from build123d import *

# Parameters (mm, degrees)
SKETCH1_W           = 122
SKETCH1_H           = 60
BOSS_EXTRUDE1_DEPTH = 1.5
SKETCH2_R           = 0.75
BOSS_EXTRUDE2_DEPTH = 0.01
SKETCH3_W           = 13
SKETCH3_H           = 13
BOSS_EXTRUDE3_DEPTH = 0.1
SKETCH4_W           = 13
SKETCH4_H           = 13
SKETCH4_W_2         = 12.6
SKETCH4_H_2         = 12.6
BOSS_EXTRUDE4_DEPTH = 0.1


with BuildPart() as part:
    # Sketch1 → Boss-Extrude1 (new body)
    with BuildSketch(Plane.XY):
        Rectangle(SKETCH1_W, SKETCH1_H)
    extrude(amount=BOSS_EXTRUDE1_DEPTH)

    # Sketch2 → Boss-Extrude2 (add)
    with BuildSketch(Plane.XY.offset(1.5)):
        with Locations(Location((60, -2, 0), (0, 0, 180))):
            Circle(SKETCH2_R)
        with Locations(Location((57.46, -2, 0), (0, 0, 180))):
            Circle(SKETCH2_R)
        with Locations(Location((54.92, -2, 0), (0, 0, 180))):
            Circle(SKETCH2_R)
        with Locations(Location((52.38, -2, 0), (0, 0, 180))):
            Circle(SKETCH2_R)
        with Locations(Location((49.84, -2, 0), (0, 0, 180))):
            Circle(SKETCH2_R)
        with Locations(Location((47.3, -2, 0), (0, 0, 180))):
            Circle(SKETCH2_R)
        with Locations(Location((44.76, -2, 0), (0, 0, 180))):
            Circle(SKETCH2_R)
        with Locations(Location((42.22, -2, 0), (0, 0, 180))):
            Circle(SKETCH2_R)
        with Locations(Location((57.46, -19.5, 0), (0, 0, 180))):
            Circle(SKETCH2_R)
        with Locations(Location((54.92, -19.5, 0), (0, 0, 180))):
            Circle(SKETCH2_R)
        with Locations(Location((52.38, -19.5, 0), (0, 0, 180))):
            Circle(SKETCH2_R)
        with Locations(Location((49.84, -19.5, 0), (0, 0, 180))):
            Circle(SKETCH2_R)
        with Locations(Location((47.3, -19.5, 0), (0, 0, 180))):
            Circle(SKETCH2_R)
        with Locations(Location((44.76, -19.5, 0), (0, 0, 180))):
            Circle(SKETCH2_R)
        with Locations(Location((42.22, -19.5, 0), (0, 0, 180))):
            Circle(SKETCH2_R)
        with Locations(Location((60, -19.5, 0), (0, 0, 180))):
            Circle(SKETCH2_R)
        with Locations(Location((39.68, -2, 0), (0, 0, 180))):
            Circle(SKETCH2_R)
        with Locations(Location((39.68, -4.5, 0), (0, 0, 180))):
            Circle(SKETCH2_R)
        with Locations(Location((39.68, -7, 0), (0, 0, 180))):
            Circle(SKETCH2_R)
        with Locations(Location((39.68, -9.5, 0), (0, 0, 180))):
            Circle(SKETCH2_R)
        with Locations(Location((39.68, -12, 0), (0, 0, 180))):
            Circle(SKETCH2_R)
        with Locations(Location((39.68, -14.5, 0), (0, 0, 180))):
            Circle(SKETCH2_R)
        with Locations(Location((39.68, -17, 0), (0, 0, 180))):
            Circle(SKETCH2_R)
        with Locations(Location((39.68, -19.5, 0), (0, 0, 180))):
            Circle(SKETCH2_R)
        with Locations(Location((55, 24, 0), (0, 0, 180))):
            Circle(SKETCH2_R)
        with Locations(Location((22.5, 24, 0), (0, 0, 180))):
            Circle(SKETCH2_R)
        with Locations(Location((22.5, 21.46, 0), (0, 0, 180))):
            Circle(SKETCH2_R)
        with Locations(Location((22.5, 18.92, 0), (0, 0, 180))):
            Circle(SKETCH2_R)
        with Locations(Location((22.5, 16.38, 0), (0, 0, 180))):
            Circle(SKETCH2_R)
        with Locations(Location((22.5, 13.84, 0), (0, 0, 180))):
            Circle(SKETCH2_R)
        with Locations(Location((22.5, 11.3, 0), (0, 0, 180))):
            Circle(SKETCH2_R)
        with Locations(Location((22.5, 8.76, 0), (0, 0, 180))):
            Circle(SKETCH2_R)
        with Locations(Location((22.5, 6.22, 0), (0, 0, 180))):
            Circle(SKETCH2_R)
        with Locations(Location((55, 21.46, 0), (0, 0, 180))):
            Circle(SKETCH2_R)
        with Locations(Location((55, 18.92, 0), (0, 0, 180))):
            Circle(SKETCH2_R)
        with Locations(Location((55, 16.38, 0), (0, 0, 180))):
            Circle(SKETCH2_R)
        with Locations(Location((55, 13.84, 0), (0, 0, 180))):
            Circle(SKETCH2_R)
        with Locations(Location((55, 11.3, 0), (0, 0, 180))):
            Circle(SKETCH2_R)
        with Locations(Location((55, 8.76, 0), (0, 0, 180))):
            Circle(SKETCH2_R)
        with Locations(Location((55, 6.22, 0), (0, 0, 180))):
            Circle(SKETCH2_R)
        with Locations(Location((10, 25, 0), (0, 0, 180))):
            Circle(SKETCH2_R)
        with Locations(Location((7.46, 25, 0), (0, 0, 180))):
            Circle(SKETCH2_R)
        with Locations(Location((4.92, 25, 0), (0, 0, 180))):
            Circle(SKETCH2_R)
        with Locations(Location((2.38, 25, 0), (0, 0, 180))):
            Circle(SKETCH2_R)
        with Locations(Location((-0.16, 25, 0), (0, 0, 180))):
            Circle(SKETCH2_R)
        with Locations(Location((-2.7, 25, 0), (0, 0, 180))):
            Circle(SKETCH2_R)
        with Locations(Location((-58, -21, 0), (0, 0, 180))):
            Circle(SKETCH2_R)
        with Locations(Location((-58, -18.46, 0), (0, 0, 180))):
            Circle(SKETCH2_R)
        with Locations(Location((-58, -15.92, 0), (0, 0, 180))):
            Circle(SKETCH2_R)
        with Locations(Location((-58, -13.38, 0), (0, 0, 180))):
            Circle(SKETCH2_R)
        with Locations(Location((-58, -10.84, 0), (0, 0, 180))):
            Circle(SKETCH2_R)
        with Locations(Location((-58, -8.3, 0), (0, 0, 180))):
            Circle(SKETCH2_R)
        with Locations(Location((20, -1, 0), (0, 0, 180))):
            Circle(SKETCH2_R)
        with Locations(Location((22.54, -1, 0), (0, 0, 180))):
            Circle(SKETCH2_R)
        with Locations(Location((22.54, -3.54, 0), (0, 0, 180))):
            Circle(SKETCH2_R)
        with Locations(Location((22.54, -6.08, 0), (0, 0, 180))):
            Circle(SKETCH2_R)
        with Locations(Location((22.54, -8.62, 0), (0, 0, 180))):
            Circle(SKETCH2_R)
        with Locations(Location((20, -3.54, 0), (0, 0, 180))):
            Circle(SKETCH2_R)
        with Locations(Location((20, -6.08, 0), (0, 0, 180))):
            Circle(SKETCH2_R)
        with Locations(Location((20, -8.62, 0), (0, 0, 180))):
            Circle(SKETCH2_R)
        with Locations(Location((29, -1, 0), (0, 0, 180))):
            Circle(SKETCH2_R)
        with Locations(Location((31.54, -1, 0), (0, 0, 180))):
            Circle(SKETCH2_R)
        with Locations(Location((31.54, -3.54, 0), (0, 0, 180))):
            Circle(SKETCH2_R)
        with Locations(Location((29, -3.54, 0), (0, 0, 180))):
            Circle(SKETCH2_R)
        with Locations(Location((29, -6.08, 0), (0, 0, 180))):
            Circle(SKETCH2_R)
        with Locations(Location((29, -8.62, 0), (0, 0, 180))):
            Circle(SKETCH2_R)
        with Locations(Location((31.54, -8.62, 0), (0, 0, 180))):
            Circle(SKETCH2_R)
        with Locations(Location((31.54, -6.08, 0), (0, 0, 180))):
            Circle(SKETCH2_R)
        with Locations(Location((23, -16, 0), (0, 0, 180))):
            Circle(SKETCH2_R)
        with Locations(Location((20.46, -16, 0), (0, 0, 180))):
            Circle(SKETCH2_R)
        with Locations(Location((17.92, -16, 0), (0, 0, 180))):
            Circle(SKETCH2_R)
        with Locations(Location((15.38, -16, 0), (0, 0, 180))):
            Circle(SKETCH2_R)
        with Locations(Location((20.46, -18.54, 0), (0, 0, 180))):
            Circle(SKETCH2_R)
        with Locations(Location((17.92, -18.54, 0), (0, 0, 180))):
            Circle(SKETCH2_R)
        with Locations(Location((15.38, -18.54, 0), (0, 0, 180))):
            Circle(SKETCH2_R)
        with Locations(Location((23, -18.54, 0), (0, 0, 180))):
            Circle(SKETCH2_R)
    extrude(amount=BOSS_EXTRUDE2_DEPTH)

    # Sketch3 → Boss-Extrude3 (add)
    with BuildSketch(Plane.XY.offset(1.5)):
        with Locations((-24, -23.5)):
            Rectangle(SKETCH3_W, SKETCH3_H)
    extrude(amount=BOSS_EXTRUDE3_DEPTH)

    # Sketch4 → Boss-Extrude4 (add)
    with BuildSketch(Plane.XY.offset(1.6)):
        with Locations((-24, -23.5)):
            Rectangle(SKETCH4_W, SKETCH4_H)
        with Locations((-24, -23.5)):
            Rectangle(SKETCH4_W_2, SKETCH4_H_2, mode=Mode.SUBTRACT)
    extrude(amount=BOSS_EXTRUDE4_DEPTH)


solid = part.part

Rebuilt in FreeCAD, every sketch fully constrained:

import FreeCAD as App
import Part
import Sketcher

V = App.Vector

doc = App.newDocument("Part")
body = doc.addObject("PartDesign::Body", "Body")

sketch1 = body.newObject("Sketcher::SketchObject", "Sketch")
sketch1.AttachmentSupport = (doc.getObject("XY_Plane"), [""])
sketch1.MapMode = "FlatFace"
sketch1.addGeometry([
    Part.LineSegment(V(-61, 30, 0), V(-61, -30, 0)),
    Part.LineSegment(V(-61, -30, 0), V(61, -30, 0)),
    Part.LineSegment(V(61, -30, 0), V(61, 30, 0)),
    Part.LineSegment(V(61, 30, 0), V(-61, 30, 0)),
], False)
sketch1.addConstraint([
    Sketcher.Constraint("Coincident", 0, 2, 1, 1),
    Sketcher.Constraint("Coincident", 1, 2, 2, 1),
    Sketcher.Constraint("Coincident", 2, 2, 3, 1),
    Sketcher.Constraint("Coincident", 3, 2, 0, 1),
    Sketcher.Constraint("Vertical", 0),
    Sketcher.Constraint("Horizontal", 1),
    Sketcher.Constraint("Vertical", 2),
    Sketcher.Constraint("Horizontal", 3),
    Sketcher.Constraint("Symmetric", 0, 2, 2, 2, -1, 1),
    Sketcher.Constraint("DistanceX", 1, 1, 1, 2, 122.0),
    Sketcher.Constraint("DistanceY", 0, 2, 0, 1, 60.0),
])
pad1 = body.newObject("PartDesign::Pad", "Pad")
pad1.Profile = sketch1
pad1.Length = 1.5

sketch2 = body.newObject("Sketcher::SketchObject", "Sketch001")
sketch2.AttachmentSupport = (doc.getObject("XY_Plane"), [""])
sketch2.MapMode = "FlatFace"
sketch2.AttachmentOffset = App.Placement(V(0, 0, 1.5), App.Rotation())
sketch2.addGeometry([
    Part.Circle(V(60, -2, 0), V(0, 0, 1), 0.8),
    Part.Circle(V(57.5, -2, 0), V(0, 0, 1), 0.8),
    Part.Circle(V(54.9, -2, 0), V(0, 0, 1), 0.8),
    Part.Circle(V(52.4, -2, 0), V(0, 0, 1), 0.8),
    Part.Circle(V(49.8, -2, 0), V(0, 0, 1), 0.8),
    Part.Circle(V(47.3, -2, 0), V(0, 0, 1), 0.8),
    Part.Circle(V(44.8, -2, 0), V(0, 0, 1), 0.8),
    Part.Circle(V(42.2, -2, 0), V(0, 0, 1), 0.8),
    Part.Circle(V(57.5, -19.5, 0), V(0, 0, 1), 0.8),
    Part.Circle(V(54.9, -19.5, 0), V(0, 0, 1), 0.8),
    Part.Circle(V(52.4, -19.5, 0), V(0, 0, 1), 0.8),
    Part.Circle(V(49.8, -19.5, 0), V(0, 0, 1), 0.8),
    Part.Circle(V(47.3, -19.5, 0), V(0, 0, 1), 0.8),
    Part.Circle(V(44.8, -19.5, 0), V(0, 0, 1), 0.8),
    Part.Circle(V(42.2, -19.5, 0), V(0, 0, 1), 0.8),
    Part.Circle(V(60, -19.5, 0), V(0, 0, 1), 0.8),
    Part.Circle(V(39.7, -2, 0), V(0, 0, 1), 0.8),
    Part.Circle(V(39.7, -4.5, 0), V(0, 0, 1), 0.8),
    Part.Circle(V(39.7, -7, 0), V(0, 0, 1), 0.8),
    Part.Circle(V(39.7, -9.5, 0), V(0, 0, 1), 0.8),
    Part.Circle(V(39.7, -12, 0), V(0, 0, 1), 0.8),
    Part.Circle(V(39.7, -14.5, 0), V(0, 0, 1), 0.8),
    Part.Circle(V(39.7, -17, 0), V(0, 0, 1), 0.8),
    Part.Circle(V(39.7, -19.5, 0), V(0, 0, 1), 0.8),
    Part.Circle(V(55, 24, 0), V(0, 0, 1), 0.8),
    Part.Circle(V(22.5, 24, 0), V(0, 0, 1), 0.8),
    Part.Circle(V(22.5, 21.5, 0), V(0, 0, 1), 0.8),
    Part.Circle(V(22.5, 18.9, 0), V(0, 0, 1), 0.8),
    Part.Circle(V(22.5, 16.4, 0), V(0, 0, 1), 0.8),
    Part.Circle(V(22.5, 13.8, 0), V(0, 0, 1), 0.8),
    Part.Circle(V(22.5, 11.3, 0), V(0, 0, 1), 0.8),
    Part.Circle(V(22.5, 8.8, 0), V(0, 0, 1), 0.8),
    Part.Circle(V(22.5, 6.2, 0), V(0, 0, 1), 0.8),
    Part.Circle(V(55, 21.5, 0), V(0, 0, 1), 0.8),
    Part.Circle(V(55, 18.9, 0), V(0, 0, 1), 0.8),
    Part.Circle(V(55, 16.4, 0), V(0, 0, 1), 0.8),
    Part.Circle(V(55, 13.8, 0), V(0, 0, 1), 0.8),
    Part.Circle(V(55, 11.3, 0), V(0, 0, 1), 0.8),
    Part.Circle(V(55, 8.8, 0), V(0, 0, 1), 0.8),
    Part.Circle(V(55, 6.2, 0), V(0, 0, 1), 0.8),
    Part.Circle(V(10, 25, 0), V(0, 0, 1), 0.8),
    Part.Circle(V(7.5, 25, 0), V(0, 0, 1), 0.8),
    Part.Circle(V(4.9, 25, 0), V(0, 0, 1), 0.8),
    Part.Circle(V(2.4, 25, 0), V(0, 0, 1), 0.8),
    Part.Circle(V(-0.2, 25, 0), V(0, 0, 1), 0.8),
    Part.Circle(V(-2.7, 25, 0), V(0, 0, 1), 0.8),
    Part.Circle(V(-58, -21, 0), V(0, 0, 1), 0.8),
    Part.Circle(V(-58, -18.5, 0), V(0, 0, 1), 0.8),
    Part.Circle(V(-58, -15.9, 0), V(0, 0, 1), 0.8),
    Part.Circle(V(-58, -13.4, 0), V(0, 0, 1), 0.8),
    Part.Circle(V(-58, -10.8, 0), V(0, 0, 1), 0.8),
    Part.Circle(V(-58, -8.3, 0), V(0, 0, 1), 0.8),
    Part.Circle(V(20, -1, 0), V(0, 0, 1), 0.8),
    Part.Circle(V(22.5, -1, 0), V(0, 0, 1), 0.8),
    Part.Circle(V(22.5, -3.5, 0), V(0, 0, 1), 0.8),
    Part.Circle(V(22.5, -6.1, 0), V(0, 0, 1), 0.8),
    Part.Circle(V(22.5, -8.6, 0), V(0, 0, 1), 0.8),
    Part.Circle(V(20, -3.5, 0), V(0, 0, 1), 0.8),
    Part.Circle(V(20, -6.1, 0), V(0, 0, 1), 0.8),
    Part.Circle(V(20, -8.6, 0), V(0, 0, 1), 0.8),
    Part.Circle(V(29, -1, 0), V(0, 0, 1), 0.8),
    Part.Circle(V(31.5, -1, 0), V(0, 0, 1), 0.8),
    Part.Circle(V(31.5, -3.5, 0), V(0, 0, 1), 0.8),
    Part.Circle(V(29, -3.5, 0), V(0, 0, 1), 0.8),
    Part.Circle(V(29, -6.1, 0), V(0, 0, 1), 0.8),
    Part.Circle(V(29, -8.6, 0), V(0, 0, 1), 0.8),
    Part.Circle(V(31.5, -8.6, 0), V(0, 0, 1), 0.8),
    Part.Circle(V(31.5, -6.1, 0), V(0, 0, 1), 0.8),
    Part.Circle(V(23, -16, 0), V(0, 0, 1), 0.8),
    Part.Circle(V(20.5, -16, 0), V(0, 0, 1), 0.8),
    Part.Circle(V(17.9, -16, 0), V(0, 0, 1), 0.8),
    Part.Circle(V(15.4, -16, 0), V(0, 0, 1), 0.8),
    Part.Circle(V(20.5, -18.5, 0), V(0, 0, 1), 0.8),
    Part.Circle(V(17.9, -18.5, 0), V(0, 0, 1), 0.8),
    Part.Circle(V(15.4, -18.5, 0), V(0, 0, 1), 0.8),
    Part.Circle(V(23, -18.5, 0), V(0, 0, 1), 0.8),
], False)
sketch2.addConstraint([
    Sketcher.Constraint("Equal", 0, 1),
    Sketcher.Constraint("Equal", 1, 2),
    Sketcher.Constraint("Equal", 2, 3),
    Sketcher.Constraint("Equal", 3, 4),
    Sketcher.Constraint("Equal", 4, 5),
    Sketcher.Constraint("Equal", 5, 6),
    Sketcher.Constraint("Equal", 6, 7),
    Sketcher.Constraint("Equal", 7, 8),
    Sketcher.Constraint("Equal", 8, 9),
    Sketcher.Constraint("Equal", 9, 10),
    Sketcher.Constraint("Equal", 10, 11),
    Sketcher.Constraint("Equal", 11, 12),
    Sketcher.Constraint("Equal", 12, 13),
    Sketcher.Constraint("Equal", 13, 14),
    Sketcher.Constraint("Equal", 14, 15),
    Sketcher.Constraint("Equal", 15, 16),
    Sketcher.Constraint("Equal", 16, 17),
    Sketcher.Constraint("Equal", 17, 18),
    Sketcher.Constraint("Equal", 18, 19),
    Sketcher.Constraint("Equal", 19, 20),
    Sketcher.Constraint("Equal", 20, 21),
    Sketcher.Constraint("Equal", 21, 22),
    Sketcher.Constraint("Equal", 22, 23),
    Sketcher.Constraint("Equal", 23, 24),
    Sketcher.Constraint("Equal", 24, 25),
    Sketcher.Constraint("Equal", 25, 26),
    Sketcher.Constraint("Equal", 26, 27),
    Sketcher.Constraint("Equal", 27, 28),
    Sketcher.Constraint("Equal", 28, 29),
    Sketcher.Constraint("Equal", 29, 30),
    Sketcher.Constraint("Equal", 30, 31),
    Sketcher.Constraint("Equal", 31, 32),
    Sketcher.Constraint("Equal", 32, 33),
    Sketcher.Constraint("Equal", 33, 34),
    Sketcher.Constraint("Equal", 34, 35),
    Sketcher.Constraint("Equal", 35, 36),
    Sketcher.Constraint("Equal", 36, 37),
    Sketcher.Constraint("Equal", 37, 38),
    Sketcher.Constraint("Equal", 38, 39),
    Sketcher.Constraint("Equal", 39, 40),
    Sketcher.Constraint("Equal", 40, 41),
    Sketcher.Constraint("Equal", 41, 42),
    Sketcher.Constraint("Equal", 42, 43),
    Sketcher.Constraint("Equal", 43, 44),
    Sketcher.Constraint("Equal", 44, 45),
    Sketcher.Constraint("Equal", 45, 46),
    Sketcher.Constraint("Equal", 46, 47),
    Sketcher.Constraint("Equal", 47, 48),
    Sketcher.Constraint("Equal", 48, 49),
    Sketcher.Constraint("Equal", 49, 50),
    Sketcher.Constraint("Equal", 50, 51),
    Sketcher.Constraint("Equal", 51, 52),
    Sketcher.Constraint("Equal", 52, 53),
    Sketcher.Constraint("Equal", 53, 54),
    Sketcher.Constraint("Equal", 54, 55),
    Sketcher.Constraint("Equal", 55, 56),
    Sketcher.Constraint("Equal", 56, 57),
    Sketcher.Constraint("Equal", 57, 58),
    Sketcher.Constraint("Equal", 58, 59),
    Sketcher.Constraint("Equal", 59, 60),
    Sketcher.Constraint("Equal", 60, 61),
    Sketcher.Constraint("Equal", 61, 62),
    Sketcher.Constraint("Equal", 62, 63),
    Sketcher.Constraint("Equal", 63, 64),
    Sketcher.Constraint("Equal", 64, 65),
    Sketcher.Constraint("Equal", 65, 66),
    Sketcher.Constraint("Equal", 66, 67),
    Sketcher.Constraint("Equal", 67, 68),
    Sketcher.Constraint("Equal", 68, 69),
    Sketcher.Constraint("Equal", 69, 70),
    Sketcher.Constraint("Equal", 70, 71),
    Sketcher.Constraint("Equal", 71, 72),
    Sketcher.Constraint("Equal", 72, 73),
    Sketcher.Constraint("Equal", 73, 74),
    Sketcher.Constraint("Equal", 74, 75),
    Sketcher.Constraint("Horizontal", 0, 3, 1, 3),
    Sketcher.Constraint("Horizontal", 1, 3, 2, 3),
    Sketcher.Constraint("Horizontal", 2, 3, 3, 3),
    Sketcher.Constraint("Horizontal", 3, 3, 4, 3),
    Sketcher.Constraint("Horizontal", 4, 3, 5, 3),
    Sketcher.Constraint("Horizontal", 5, 3, 6, 3),
    Sketcher.Constraint("Horizontal", 6, 3, 7, 3),
    Sketcher.Constraint("Horizontal", 8, 3, 9, 3),
    Sketcher.Constraint("Horizontal", 9, 3, 10, 3),
    Sketcher.Constraint("Horizontal", 10, 3, 11, 3),
    Sketcher.Constraint("Horizontal", 11, 3, 12, 3),
    Sketcher.Constraint("Horizontal", 12, 3, 13, 3),
    Sketcher.Constraint("Horizontal", 13, 3, 14, 3),
    Sketcher.Constraint("Horizontal", 14, 3, 15, 3),
    Sketcher.Constraint("Horizontal", 7, 3, 16, 3),
    Sketcher.Constraint("Horizontal", 15, 3, 23, 3),
    Sketcher.Constraint("Horizontal", 24, 3, 25, 3),
    Sketcher.Constraint("Horizontal", 26, 3, 33, 3),
    Sketcher.Constraint("Horizontal", 27, 3, 34, 3),
    Sketcher.Constraint("Horizontal", 28, 3, 35, 3),
    Sketcher.Constraint("Horizontal", 29, 3, 36, 3),
    Sketcher.Constraint("Horizontal", 30, 3, 37, 3),
    Sketcher.Constraint("Horizontal", 31, 3, 38, 3),
    Sketcher.Constraint("Horizontal", 32, 3, 39, 3),
    Sketcher.Constraint("Horizontal", 40, 3, 41, 3),
    Sketcher.Constraint("Horizontal", 41, 3, 42, 3),
    Sketcher.Constraint("Horizontal", 42, 3, 43, 3),
    Sketcher.Constraint("Horizontal", 43, 3, 44, 3),
    Sketcher.Constraint("Horizontal", 44, 3, 45, 3),
    Sketcher.Constraint("Horizontal", 52, 3, 53, 3),
    Sketcher.Constraint("Horizontal", 54, 3, 57, 3),
    Sketcher.Constraint("Horizontal", 55, 3, 58, 3),
    Sketcher.Constraint("Horizontal", 56, 3, 59, 3),
    Sketcher.Constraint("Horizontal", 53, 3, 60, 3),
    Sketcher.Constraint("Horizontal", 60, 3, 61, 3),
    Sketcher.Constraint("Horizontal", 57, 3, 62, 3),
    Sketcher.Constraint("Horizontal", 62, 3, 63, 3),
    Sketcher.Constraint("Horizontal", 58, 3, 64, 3),
    Sketcher.Constraint("Horizontal", 59, 3, 65, 3),
    Sketcher.Constraint("Horizontal", 65, 3, 66, 3),
    Sketcher.Constraint("Horizontal", 64, 3, 67, 3),
    Sketcher.Constraint("Horizontal", 68, 3, 69, 3),
    Sketcher.Constraint("Horizontal", 69, 3, 70, 3),
    Sketcher.Constraint("Horizontal", 70, 3, 71, 3),
    Sketcher.Constraint("Horizontal", 72, 3, 73, 3),
    Sketcher.Constraint("Horizontal", 73, 3, 74, 3),
    Sketcher.Constraint("Horizontal", 74, 3, 75, 3),
    Sketcher.Constraint("Vertical", 1, 3, 8, 3),
    Sketcher.Constraint("Vertical", 2, 3, 9, 3),
    Sketcher.Constraint("Vertical", 3, 3, 10, 3),
    Sketcher.Constraint("Vertical", 4, 3, 11, 3),
    Sketcher.Constraint("Vertical", 5, 3, 12, 3),
    Sketcher.Constraint("Vertical", 6, 3, 13, 3),
    Sketcher.Constraint("Vertical", 7, 3, 14, 3),
    Sketcher.Constraint("Vertical", 0, 3, 15, 3),
    Sketcher.Constraint("Vertical", 16, 3, 17, 3),
    Sketcher.Constraint("Vertical", 17, 3, 18, 3),
    Sketcher.Constraint("Vertical", 18, 3, 19, 3),
    Sketcher.Constraint("Vertical", 19, 3, 20, 3),
    Sketcher.Constraint("Vertical", 20, 3, 21, 3),
    Sketcher.Constraint("Vertical", 21, 3, 22, 3),
    Sketcher.Constraint("Vertical", 22, 3, 23, 3),
    Sketcher.Constraint("Vertical", 25, 3, 26, 3),
    Sketcher.Constraint("Vertical", 26, 3, 27, 3),
    Sketcher.Constraint("Vertical", 27, 3, 28, 3),
    Sketcher.Constraint("Vertical", 28, 3, 29, 3),
    Sketcher.Constraint("Vertical", 29, 3, 30, 3),
    Sketcher.Constraint("Vertical", 30, 3, 31, 3),
    Sketcher.Constraint("Vertical", 31, 3, 32, 3),
    Sketcher.Constraint("Vertical", 24, 3, 33, 3),
    Sketcher.Constraint("Vertical", 33, 3, 34, 3),
    Sketcher.Constraint("Vertical", 34, 3, 35, 3),
    Sketcher.Constraint("Vertical", 35, 3, 36, 3),
    Sketcher.Constraint("Vertical", 36, 3, 37, 3),
    Sketcher.Constraint("Vertical", 37, 3, 38, 3),
    Sketcher.Constraint("Vertical", 38, 3, 39, 3),
    Sketcher.Constraint("Vertical", 46, 3, 47, 3),
    Sketcher.Constraint("Vertical", 47, 3, 48, 3),
    Sketcher.Constraint("Vertical", 48, 3, 49, 3),
    Sketcher.Constraint("Vertical", 49, 3, 50, 3),
    Sketcher.Constraint("Vertical", 50, 3, 51, 3),
    Sketcher.Constraint("Vertical", 53, 3, 54, 3),
    Sketcher.Constraint("Vertical", 54, 3, 55, 3),
    Sketcher.Constraint("Vertical", 55, 3, 56, 3),
    Sketcher.Constraint("Vertical", 52, 3, 57, 3),
    Sketcher.Constraint("Vertical", 57, 3, 58, 3),
    Sketcher.Constraint("Vertical", 58, 3, 59, 3),
    Sketcher.Constraint("Vertical", 61, 3, 62, 3),
    Sketcher.Constraint("Vertical", 60, 3, 63, 3),
    Sketcher.Constraint("Vertical", 63, 3, 64, 3),
    Sketcher.Constraint("Vertical", 64, 3, 65, 3),
    Sketcher.Constraint("Vertical", 62, 3, 66, 3),
    Sketcher.Constraint("Vertical", 66, 3, 67, 3),
    Sketcher.Constraint("Vertical", 69, 3, 72, 3),
    Sketcher.Constraint("Vertical", 70, 3, 73, 3),
    Sketcher.Constraint("Vertical", 71, 3, 74, 3),
    Sketcher.Constraint("Vertical", 68, 3, 75, 3),
    Sketcher.Constraint("Diameter", 0, 1.5),
    Sketcher.Constraint("DistanceX", -1, 1, 0, 3, 60.0),
    Sketcher.Constraint("DistanceY", 0, 3, -1, 1, 2.0),
    Sketcher.Constraint("DistanceY", 18, 3, -1, 1, 7.0),
    Sketcher.Constraint("DistanceY", 20, 3, -1, 1, 12.0),
    Sketcher.Constraint("DistanceY", 22, 3, -1, 1, 17.0),
    Sketcher.Constraint("DistanceX", -1, 1, 24, 3, 55.0),
    Sketcher.Constraint("DistanceY", -1, 1, 24, 3, 24.0),
    Sketcher.Constraint("DistanceX", -1, 1, 40, 3, 10.0),
    Sketcher.Constraint("DistanceY", -1, 1, 40, 3, 25.0),
    Sketcher.Constraint("DistanceX", 46, 3, -1, 1, 58.0),
    Sketcher.Constraint("DistanceY", 46, 3, -1, 1, 21.0),
    Sketcher.Constraint("DistanceX", -1, 1, 52, 3, 20.0),
    Sketcher.Constraint("DistanceY", 52, 3, -1, 1, 1.0),
    Sketcher.Constraint("DistanceX", -1, 1, 60, 3, 29.0),
    Sketcher.Constraint("DistanceX", -1, 1, 68, 3, 23.0),
    Sketcher.Constraint("DistanceY", 68, 3, -1, 1, 16.0),
    Sketcher.Constraint("DistanceX", -1, 1, 5, 3, 47.3),
    Sketcher.Constraint("DistanceY", 8, 3, -1, 1, 19.5),
    Sketcher.Constraint("DistanceY", 17, 3, -1, 1, 4.5),
    Sketcher.Constraint("DistanceY", 19, 3, -1, 1, 9.5),
    Sketcher.Constraint("DistanceY", 21, 3, -1, 1, 14.5),
    Sketcher.Constraint("DistanceX", -1, 1, 25, 3, 22.5),
    Sketcher.Constraint("DistanceY", -1, 1, 30, 3, 11.3),
    Sketcher.Constraint("DistanceX", 45, 3, -1, 1, 2.7),
    Sketcher.Constraint("DistanceY", 51, 3, -1, 1, 8.3),
    Sketcher.Constraint("DistanceX", -1, 1, 1, 3, 57.46),
    Sketcher.Constraint("DistanceX", -1, 1, 2, 3, 54.92),
    Sketcher.Constraint("DistanceX", -1, 1, 3, 3, 52.38),
    Sketcher.Constraint("DistanceX", -1, 1, 4, 3, 49.84),
    Sketcher.Constraint("DistanceX", -1, 1, 6, 3, 44.76),
    Sketcher.Constraint("DistanceX", -1, 1, 7, 3, 42.22),
    Sketcher.Constraint("DistanceX", -1, 1, 16, 3, 39.68),
    Sketcher.Constraint("DistanceY", -1, 1, 26, 3, 21.46),
    Sketcher.Constraint("DistanceY", -1, 1, 27, 3, 18.92),
    Sketcher.Constraint("DistanceY", -1, 1, 28, 3, 16.38),
    Sketcher.Constraint("DistanceY", -1, 1, 29, 3, 13.84),
    Sketcher.Constraint("DistanceY", -1, 1, 31, 3, 8.76),
    Sketcher.Constraint("DistanceY", -1, 1, 32, 3, 6.22),
    Sketcher.Constraint("DistanceX", -1, 1, 41, 3, 7.46),
    Sketcher.Constraint("DistanceX", -1, 1, 42, 3, 4.92),
    Sketcher.Constraint("DistanceX", -1, 1, 43, 3, 2.38),
    Sketcher.Constraint("DistanceX", 44, 3, -1, 1, 0.16),
    Sketcher.Constraint("DistanceY", 47, 3, -1, 1, 18.46),
    Sketcher.Constraint("DistanceY", 48, 3, -1, 1, 15.92),
    Sketcher.Constraint("DistanceY", 49, 3, -1, 1, 13.38),
    Sketcher.Constraint("DistanceY", 50, 3, -1, 1, 10.84),
    Sketcher.Constraint("DistanceX", -1, 1, 53, 3, 22.54),
    Sketcher.Constraint("DistanceY", 54, 3, -1, 1, 3.54),
    Sketcher.Constraint("DistanceY", 55, 3, -1, 1, 6.08),
    Sketcher.Constraint("DistanceY", 56, 3, -1, 1, 8.62),
    Sketcher.Constraint("DistanceX", -1, 1, 61, 3, 31.54),
    Sketcher.Constraint("DistanceX", -1, 1, 69, 3, 20.46),
    Sketcher.Constraint("DistanceX", -1, 1, 70, 3, 17.92),
    Sketcher.Constraint("DistanceX", -1, 1, 71, 3, 15.38),
    Sketcher.Constraint("DistanceY", 72, 3, -1, 1, 18.54),
])
pad2 = body.newObject("PartDesign::Pad", "Pad001")
pad2.Profile = sketch2
pad2.Length = 0.01

sketch3 = body.newObject("Sketcher::SketchObject", "Sketch002")
sketch3.AttachmentSupport = (doc.getObject("XY_Plane"), [""])
sketch3.MapMode = "FlatFace"
sketch3.AttachmentOffset = App.Placement(V(0, 0, 1.5), App.Rotation())
sketch3.addGeometry([
    Part.LineSegment(V(-30, -17, 0), V(-30, -30, 0)),
    Part.LineSegment(V(-30, -30, 0), V(-18, -30, 0)),
    Part.LineSegment(V(-18, -30, 0), V(-18, -17, 0)),
    Part.LineSegment(V(-18, -17, 0), V(-30, -17, 0)),
], False)
sketch3.addConstraint([
    Sketcher.Constraint("Coincident", 0, 2, 1, 1),
    Sketcher.Constraint("Coincident", 1, 2, 2, 1),
    Sketcher.Constraint("Coincident", 2, 2, 3, 1),
    Sketcher.Constraint("Coincident", 3, 2, 0, 1),
    Sketcher.Constraint("Vertical", 0),
    Sketcher.Constraint("Horizontal", 1),
    Sketcher.Constraint("Vertical", 2),
    Sketcher.Constraint("Horizontal", 3),
    Sketcher.Constraint("Equal", 3, 0),
    Sketcher.Constraint("DistanceX", 1, 1, 1, 2, 13.0),
    Sketcher.Constraint("DistanceY", 0, 2, -1, 1, 30.0),
    Sketcher.Constraint("DistanceX", 0, 2, -1, 1, 30.5),
])
pad3 = body.newObject("PartDesign::Pad", "Pad002")
pad3.Profile = sketch3
pad3.Length = 0.1

sketch4 = body.newObject("Sketcher::SketchObject", "Sketch003")
sketch4.AttachmentSupport = (doc.getObject("XY_Plane"), [""])
sketch4.MapMode = "FlatFace"
sketch4.AttachmentOffset = App.Placement(V(0, 0, 1.6), App.Rotation())
sketch4.addGeometry([
    Part.LineSegment(V(-30, -17, 0), V(-30, -30, 0)),
    Part.LineSegment(V(-30, -30, 0), V(-18, -30, 0)),
    Part.LineSegment(V(-18, -30, 0), V(-18, -17, 0)),
    Part.LineSegment(V(-18, -17, 0), V(-30, -17, 0)),
    Part.LineSegment(V(-18, -30, 0), V(-30, -30, 0)),
    Part.LineSegment(V(-30, -30, 0), V(-30, -17, 0)),
    Part.LineSegment(V(-30, -17, 0), V(-18, -17, 0)),
    Part.LineSegment(V(-18, -17, 0), V(-18, -30, 0)),
], False)
sketch4.addConstraint([
    Sketcher.Constraint("Coincident", 0, 2, 1, 1),
    Sketcher.Constraint("Coincident", 1, 2, 2, 1),
    Sketcher.Constraint("Coincident", 2, 2, 3, 1),
    Sketcher.Constraint("Coincident", 3, 2, 0, 1),
    Sketcher.Constraint("Coincident", 4, 2, 5, 1),
    Sketcher.Constraint("Coincident", 5, 2, 6, 1),
    Sketcher.Constraint("Coincident", 6, 2, 7, 1),
    Sketcher.Constraint("Coincident", 7, 2, 4, 1),
    Sketcher.Constraint("Vertical", 0),
    Sketcher.Constraint("Horizontal", 1),
    Sketcher.Constraint("Vertical", 2),
    Sketcher.Constraint("Horizontal", 3),
    Sketcher.Constraint("Horizontal", 4),
    Sketcher.Constraint("Vertical", 5),
    Sketcher.Constraint("Horizontal", 6),
    Sketcher.Constraint("Vertical", 7),
    Sketcher.Constraint("Equal", 3, 0),
    Sketcher.Constraint("Equal", 6, 5),
    Sketcher.Constraint("DistanceX", 1, 1, 1, 2, 13.0),
    Sketcher.Constraint("DistanceX", 4, 2, 4, 1, 12.6),
    Sketcher.Constraint("DistanceY", 0, 2, -1, 1, 30.0),
    Sketcher.Constraint("DistanceX", 0, 2, -1, 1, 30.5),
    Sketcher.Constraint("DistanceX", 4, 2, -1, 1, 30.3),
    Sketcher.Constraint("DistanceY", 4, 2, -1, 1, 29.8),
])
pad4 = body.newObject("PartDesign::Pad", "Pad003")
pad4.Profile = sketch4
pad4.Length = 0.1

doc.recompute()
